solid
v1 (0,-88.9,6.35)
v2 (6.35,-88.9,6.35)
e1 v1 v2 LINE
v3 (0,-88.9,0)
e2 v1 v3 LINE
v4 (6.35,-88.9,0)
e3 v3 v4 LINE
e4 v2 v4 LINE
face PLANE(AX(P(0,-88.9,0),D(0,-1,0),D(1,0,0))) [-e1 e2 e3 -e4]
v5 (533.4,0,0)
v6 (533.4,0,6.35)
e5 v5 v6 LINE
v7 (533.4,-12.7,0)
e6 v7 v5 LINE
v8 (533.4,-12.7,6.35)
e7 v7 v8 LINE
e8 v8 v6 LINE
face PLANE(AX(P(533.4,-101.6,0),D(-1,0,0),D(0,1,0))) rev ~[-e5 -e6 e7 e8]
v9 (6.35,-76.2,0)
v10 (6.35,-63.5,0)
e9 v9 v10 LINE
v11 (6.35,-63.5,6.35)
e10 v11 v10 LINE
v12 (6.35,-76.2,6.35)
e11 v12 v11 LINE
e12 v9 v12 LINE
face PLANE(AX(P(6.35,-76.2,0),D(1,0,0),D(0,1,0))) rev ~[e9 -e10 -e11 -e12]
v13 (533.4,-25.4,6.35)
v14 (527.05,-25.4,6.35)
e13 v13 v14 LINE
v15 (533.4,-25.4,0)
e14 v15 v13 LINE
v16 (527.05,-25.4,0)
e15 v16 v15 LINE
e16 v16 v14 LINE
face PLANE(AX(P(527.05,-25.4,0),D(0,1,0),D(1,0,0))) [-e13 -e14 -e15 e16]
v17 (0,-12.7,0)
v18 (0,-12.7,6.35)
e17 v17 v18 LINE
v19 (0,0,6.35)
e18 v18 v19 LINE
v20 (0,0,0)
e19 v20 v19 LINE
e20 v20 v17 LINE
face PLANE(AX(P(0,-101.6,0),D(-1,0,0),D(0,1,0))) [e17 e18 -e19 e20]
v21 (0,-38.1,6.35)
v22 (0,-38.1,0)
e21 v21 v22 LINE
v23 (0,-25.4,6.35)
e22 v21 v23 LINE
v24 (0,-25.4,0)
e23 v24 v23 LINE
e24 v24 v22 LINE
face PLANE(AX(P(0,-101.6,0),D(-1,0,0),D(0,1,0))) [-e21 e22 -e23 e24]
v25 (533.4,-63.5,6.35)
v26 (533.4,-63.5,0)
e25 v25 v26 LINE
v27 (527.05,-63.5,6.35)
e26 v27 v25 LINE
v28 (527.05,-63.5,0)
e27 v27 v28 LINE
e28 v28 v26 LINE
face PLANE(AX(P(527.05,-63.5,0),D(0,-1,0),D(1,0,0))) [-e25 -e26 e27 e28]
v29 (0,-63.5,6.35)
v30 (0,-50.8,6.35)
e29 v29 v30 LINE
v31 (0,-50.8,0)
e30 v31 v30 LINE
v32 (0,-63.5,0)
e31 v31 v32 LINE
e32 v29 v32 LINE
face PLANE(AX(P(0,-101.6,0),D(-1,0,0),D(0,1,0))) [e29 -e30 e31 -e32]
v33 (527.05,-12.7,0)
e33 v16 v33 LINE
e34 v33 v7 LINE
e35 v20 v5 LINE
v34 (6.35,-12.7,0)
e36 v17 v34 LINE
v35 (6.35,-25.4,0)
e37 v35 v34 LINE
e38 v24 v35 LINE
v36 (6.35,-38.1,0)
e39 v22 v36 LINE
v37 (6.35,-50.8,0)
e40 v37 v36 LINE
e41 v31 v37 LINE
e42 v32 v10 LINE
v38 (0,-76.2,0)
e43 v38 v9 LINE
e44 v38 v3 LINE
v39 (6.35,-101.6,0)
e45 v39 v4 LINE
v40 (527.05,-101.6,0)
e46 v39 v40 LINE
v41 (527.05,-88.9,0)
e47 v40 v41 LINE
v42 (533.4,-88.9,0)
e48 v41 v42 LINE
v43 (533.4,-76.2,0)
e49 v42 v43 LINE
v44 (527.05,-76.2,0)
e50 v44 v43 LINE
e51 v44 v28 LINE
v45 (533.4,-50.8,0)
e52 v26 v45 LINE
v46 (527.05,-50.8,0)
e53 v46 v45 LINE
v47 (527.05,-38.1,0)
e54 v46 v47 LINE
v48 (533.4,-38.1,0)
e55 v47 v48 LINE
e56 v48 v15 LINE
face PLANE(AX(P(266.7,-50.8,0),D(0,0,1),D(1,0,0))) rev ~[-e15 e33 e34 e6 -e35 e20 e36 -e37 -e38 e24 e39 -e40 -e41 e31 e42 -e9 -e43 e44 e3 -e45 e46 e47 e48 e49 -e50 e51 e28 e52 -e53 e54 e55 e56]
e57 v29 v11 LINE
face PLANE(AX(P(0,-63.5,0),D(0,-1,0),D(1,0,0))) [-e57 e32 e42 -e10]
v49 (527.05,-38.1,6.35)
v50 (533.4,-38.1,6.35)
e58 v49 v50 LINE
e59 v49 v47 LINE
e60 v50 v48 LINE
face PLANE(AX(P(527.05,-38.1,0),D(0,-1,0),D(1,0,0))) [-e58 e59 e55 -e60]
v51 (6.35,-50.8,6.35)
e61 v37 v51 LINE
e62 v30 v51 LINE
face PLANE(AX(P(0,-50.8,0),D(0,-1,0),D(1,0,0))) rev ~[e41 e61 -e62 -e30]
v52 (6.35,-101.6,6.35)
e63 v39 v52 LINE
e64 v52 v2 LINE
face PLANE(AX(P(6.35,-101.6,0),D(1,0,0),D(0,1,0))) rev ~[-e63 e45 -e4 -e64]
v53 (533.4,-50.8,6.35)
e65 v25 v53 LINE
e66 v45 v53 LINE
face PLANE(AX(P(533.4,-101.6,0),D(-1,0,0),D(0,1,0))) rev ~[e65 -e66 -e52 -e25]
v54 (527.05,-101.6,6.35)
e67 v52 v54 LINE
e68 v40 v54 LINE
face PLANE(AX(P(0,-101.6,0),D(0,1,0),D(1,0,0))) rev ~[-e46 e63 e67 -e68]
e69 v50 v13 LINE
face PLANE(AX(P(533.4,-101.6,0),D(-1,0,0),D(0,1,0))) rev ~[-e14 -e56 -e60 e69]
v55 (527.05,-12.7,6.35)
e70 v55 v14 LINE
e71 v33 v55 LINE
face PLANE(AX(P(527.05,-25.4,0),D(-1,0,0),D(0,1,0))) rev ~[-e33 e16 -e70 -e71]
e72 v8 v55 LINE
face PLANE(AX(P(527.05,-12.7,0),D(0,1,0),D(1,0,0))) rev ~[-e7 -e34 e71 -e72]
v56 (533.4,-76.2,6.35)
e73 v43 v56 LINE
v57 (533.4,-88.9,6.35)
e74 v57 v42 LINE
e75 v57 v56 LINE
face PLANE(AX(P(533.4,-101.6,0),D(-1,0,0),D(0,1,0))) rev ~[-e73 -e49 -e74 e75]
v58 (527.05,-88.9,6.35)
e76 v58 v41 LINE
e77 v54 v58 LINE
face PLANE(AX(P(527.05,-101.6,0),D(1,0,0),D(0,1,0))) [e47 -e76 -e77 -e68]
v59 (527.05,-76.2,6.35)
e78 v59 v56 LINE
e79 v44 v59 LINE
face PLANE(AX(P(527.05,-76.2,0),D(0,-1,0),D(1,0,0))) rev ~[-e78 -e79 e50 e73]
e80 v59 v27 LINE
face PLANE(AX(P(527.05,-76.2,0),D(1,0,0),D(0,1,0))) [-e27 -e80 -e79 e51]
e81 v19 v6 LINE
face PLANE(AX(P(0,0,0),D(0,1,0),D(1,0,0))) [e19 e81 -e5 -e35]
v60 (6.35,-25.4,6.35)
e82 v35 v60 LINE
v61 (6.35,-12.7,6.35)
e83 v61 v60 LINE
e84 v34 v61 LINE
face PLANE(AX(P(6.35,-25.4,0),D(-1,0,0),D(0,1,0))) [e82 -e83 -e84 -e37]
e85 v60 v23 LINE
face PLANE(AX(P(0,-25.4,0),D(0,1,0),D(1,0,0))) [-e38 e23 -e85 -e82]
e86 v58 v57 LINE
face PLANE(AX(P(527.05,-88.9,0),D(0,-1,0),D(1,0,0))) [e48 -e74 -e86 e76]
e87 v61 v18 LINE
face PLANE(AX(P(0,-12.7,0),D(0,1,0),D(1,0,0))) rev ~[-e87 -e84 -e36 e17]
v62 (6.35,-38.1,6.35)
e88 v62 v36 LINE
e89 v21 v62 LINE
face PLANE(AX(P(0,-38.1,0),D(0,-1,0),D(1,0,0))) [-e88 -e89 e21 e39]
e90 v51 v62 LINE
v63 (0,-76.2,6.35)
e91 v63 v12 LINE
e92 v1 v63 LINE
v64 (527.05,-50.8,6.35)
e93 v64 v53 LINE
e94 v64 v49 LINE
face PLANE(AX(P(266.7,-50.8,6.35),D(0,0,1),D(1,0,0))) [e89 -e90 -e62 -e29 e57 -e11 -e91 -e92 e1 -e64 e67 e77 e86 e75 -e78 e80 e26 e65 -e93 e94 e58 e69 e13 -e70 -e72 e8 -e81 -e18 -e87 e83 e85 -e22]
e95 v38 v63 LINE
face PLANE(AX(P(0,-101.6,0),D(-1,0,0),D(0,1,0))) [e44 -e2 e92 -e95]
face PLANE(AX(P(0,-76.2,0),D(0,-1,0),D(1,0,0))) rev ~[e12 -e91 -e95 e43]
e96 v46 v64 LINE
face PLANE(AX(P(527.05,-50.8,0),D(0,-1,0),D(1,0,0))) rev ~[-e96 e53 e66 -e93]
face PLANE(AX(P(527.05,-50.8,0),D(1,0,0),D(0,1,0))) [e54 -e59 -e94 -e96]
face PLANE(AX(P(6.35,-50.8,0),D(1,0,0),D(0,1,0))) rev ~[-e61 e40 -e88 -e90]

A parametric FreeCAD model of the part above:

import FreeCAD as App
import Part
import Sketcher

V = App.Vector
Q = App.Units.Quantity

doc = App.newDocument("Part")
body = doc.addObject("PartDesign::Body", "Body")

# Sketch on XY plane
sketch1 = body.newObject("Sketcher::SketchObject", "Sketch")
sketch1.AttachmentSupport = (doc.getObject("XY_Plane"), [""])
sketch1.MapMode = "FlatFace"
sketch1.addGeometry([
    Part.LineSegment(V(0, 0, 0), V(0, -102, 0)),
    Part.LineSegment(V(0, -102, 0), V(533, -102, 0)),
    Part.LineSegment(V(533, -102, 0), V(533, 0, 0)),
    Part.LineSegment(V(533, 0, 0), V(0, 0, 0)),
], False)
sketch1.addConstraint([
    Sketcher.Constraint("Coincident", 0, 2, 1, 1),
    Sketcher.Constraint("Coincident", 1, 2, 2, 1),
    Sketcher.Constraint("Coincident", 2, 2, 3, 1),
    Sketcher.Constraint("Coincident", 3, 2, 0, 1),
    Sketcher.Constraint("Vertical", 0),
    Sketcher.Constraint("Horizontal", 1),
    Sketcher.Constraint("Vertical", 2),
    Sketcher.Constraint("Horizontal", 3),
    Sketcher.Constraint("Coincident", 3, 2, -1, 1),
    Sketcher.Constraint("DistanceX", 1, 1, 1, 2, Q("21 in")),
    Sketcher.Constraint("DistanceY", 0, 2, 0, 1, Q("4 in")),
])
pad1 = body.newObject("PartDesign::Pad", "Pad")
pad1.Profile = sketch1
pad1.Length = Q("0.25 in")

# Sketch on XY plane
sketch2 = body.newObject("Sketcher::SketchObject", "Sketch001")
sketch2.AttachmentSupport = (doc.getObject("XY_Plane"), [""])
sketch2.MapMode = "FlatFace"
sketch2.addGeometry([
    Part.LineSegment(V(0, -13, 0), V(0, -25, 0)),  # 0
    Part.LineSegment(V(0, -25, 0), V(6, -25, 0)),  # 1
    Part.LineSegment(V(6, -25, 0), V(6, -13, 0)),  # 2
    Part.LineSegment(V(6, -13, 0), V(0, -13, 0)),  # 3
    Part.LineSegment(V(527, -13, 0), V(527, -25, 0)),  # 4
    Part.LineSegment(V(527, -25, 0), V(533, -25, 0)),  # 5
    Part.LineSegment(V(533, -25, 0), V(533, -13, 0)),  # 6
    Part.LineSegment(V(533, -13, 0), V(527, -13, 0)),  # 7
], False)
sketch2.addConstraint([
    Sketcher.Constraint("Coincident", 0, 2, 1, 1),
    Sketcher.Constraint("Coincident", 1, 2, 2, 1),
    Sketcher.Constraint("Coincident", 2, 2, 3, 1),
    Sketcher.Constraint("Coincident", 3, 2, 0, 1),
    Sketcher.Constraint("Coincident", 4, 2, 5, 1),
    Sketcher.Constraint("Coincident", 5, 2, 6, 1),
    Sketcher.Constraint("Coincident", 6, 2, 7, 1),
    Sketcher.Constraint("Coincident", 7, 2, 4, 1),
    Sketcher.Constraint("Vertical", 0),
    Sketcher.Constraint("Horizontal", 1),
    Sketcher.Constraint("Vertical", 2),
    Sketcher.Constraint("Horizontal", 3),
    Sketcher.Constraint("Vertical", 4),
    Sketcher.Constraint("Horizontal", 5),
    Sketcher.Constraint("Vertical", 6),
    Sketcher.Constraint("Horizontal", 7),
    Sketcher.Constraint("PointOnObject", 0, 2, -2),
    Sketcher.Constraint("Horizontal", 1, 2, 4, 2),
    Sketcher.Constraint("Horizontal", 3, 2, 6, 2),
    Sketcher.Constraint("Equal", 3, 5),
    Sketcher.Constraint("DistanceY", 0, 2, 0, 1, Q("0.5 in")),
    Sketcher.Constraint("DistanceY", 0, 2, -1, 1, Q("1 in")),
    Sketcher.Constraint("DistanceX", -1, 1, 5, 2, Q("21 in")),
    Sketcher.Constraint("DistanceX", 1, 1, 1, 2, Q("0.25 in")),
])
pocket1 = body.newObject("PartDesign::Pocket", "Pocket")
pocket1.Profile = sketch2
pocket1.Type = "ThroughAll"
pocket1.Midplane = True
doc.recompute()

linearpattern = body.newObject("PartDesign::LinearPattern", "LinearPattern")
linearpattern.Originals = [pocket1]
linearpattern.Direction = (doc.getObject("Y_Axis"), [""])
linearpattern.Mode = "offset"
linearpattern.Offset = Q("1 in")
linearpattern.Occurrences = 6
linearpattern.Reversed = True
body.Tip = linearpattern

doc.recompute()
